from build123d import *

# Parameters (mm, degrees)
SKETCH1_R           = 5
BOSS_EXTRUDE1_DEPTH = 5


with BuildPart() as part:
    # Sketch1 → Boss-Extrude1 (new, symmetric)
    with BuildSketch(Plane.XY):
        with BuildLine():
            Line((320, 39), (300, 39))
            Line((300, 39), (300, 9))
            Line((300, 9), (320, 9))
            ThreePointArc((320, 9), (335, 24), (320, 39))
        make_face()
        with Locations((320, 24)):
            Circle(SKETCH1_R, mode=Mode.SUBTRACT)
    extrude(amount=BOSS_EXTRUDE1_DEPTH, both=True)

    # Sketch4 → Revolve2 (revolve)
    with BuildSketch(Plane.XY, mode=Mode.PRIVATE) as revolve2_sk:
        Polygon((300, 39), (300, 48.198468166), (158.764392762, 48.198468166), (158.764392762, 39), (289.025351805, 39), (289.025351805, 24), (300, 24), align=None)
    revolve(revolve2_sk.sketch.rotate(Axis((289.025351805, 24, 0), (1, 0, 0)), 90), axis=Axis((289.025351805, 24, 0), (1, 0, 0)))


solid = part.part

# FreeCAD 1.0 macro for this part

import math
import FreeCAD as App
import Part
import Sketcher

V = App.Vector

doc = App.newDocument("Part")
body = doc.addObject("PartDesign::Body", "Body")

sketch1 = body.newObject("Sketcher::SketchObject", "Sketch")
sketch1.AttachmentSupport = (doc.getObject("XY_Plane"), [""])
sketch1.MapMode = "FlatFace"
sketch1.addGeometry([
    Part.LineSegment(V(320, 39, 0), V(300, 39, 0)),
    Part.LineSegment(V(300, 39, 0), V(300, 9, 0)),
    Part.LineSegment(V(300, 9, 0), V(320, 9, 0)),
    Part.ArcOfCircle(Part.Circle(V(320, 24, 0), V(0, 0, 1), 15), math.radians(-90), math.radians(90)),
    Part.Circle(V(320, 24, 0), V(0, 0, 1), 5),
], False)
sketch1.addConstraint([
    Sketcher.Constraint("Coincident", 0, 2, 1, 1),
    Sketcher.Constraint("Coincident", 1, 2, 2, 1),
    Sketcher.Constraint("Tangent", 2, 2, 3, 1),
    Sketcher.Constraint("Tangent", 3, 2, 0, 1),
    Sketcher.Constraint("Horizontal", 0),
    Sketcher.Constraint("Vertical", 1),
    Sketcher.Constraint("Horizontal", 2),
    Sketcher.Constraint("Coincident", 4, 3, 3, 3),
    Sketcher.Constraint("Diameter", 4, 10.0),
    Sketcher.Constraint("Radius", 3, 15.0),
    Sketcher.Constraint("DistanceX", 0, 2, 0, 1, 20.0),
    Sketcher.Constraint("DistanceX", -1, 1, 3, 3, 320.0),
    Sketcher.Constraint("DistanceY", -1, 1, 3, 3, 24.0),
])
pad1 = body.newObject("PartDesign::Pad", "Pad")
pad1.Profile = sketch1
pad1.Length = 10
pad1.Midplane = True

sketch2 = body.newObject("Sketcher::SketchObject", "Sketch001")
sketch2.AttachmentSupport = (doc.getObject("XY_Plane"), [""])
sketch2.MapMode = "FlatFace"
sketch2.addGeometry([
    Part.LineSegment(V(300, 48, 0), V(159, 48, 0)),
    Part.LineSegment(V(159, 48, 0), V(159, 39, 0)),
    Part.LineSegment(V(159, 39, 0), V(289, 39, 0)),
    Part.LineSegment(V(289, 39, 0), V(289, 24, 0)),
    Part.LineSegment(V(289, 24, 0), V(300, 24, 0)),
    Part.LineSegment(V(300, 24, 0), V(300, 48, 0)),
], False)
sketch2.addGeometry(Part.LineSegment(V(159, 24, 0), V(300, 24, 0)), True)
sketch2.addConstraint([
    Sketcher.Constraint("Coincident", 0, 2, 1, 1),
    Sketcher.Constraint("Coincident", 1, 2, 2, 1),
    Sketcher.Constraint("Coincident", 2, 2, 3, 1),
    Sketcher.Constraint("Coincident", 3, 2, 4, 1),
    Sketcher.Constraint("Coincident", 4, 2, 5, 1),
    Sketcher.Constraint("Coincident", 5, 2, 0, 1),
    Sketcher.Constraint("Horizontal", 0),
    Sketcher.Constraint("Vertical", 1),
    Sketcher.Constraint("Horizontal", 2),
    Sketcher.Constraint("Vertical", 3),
    Sketcher.Constraint("Horizontal", 4),
    Sketcher.Constraint("Vertical", 5),
    Sketcher.Constraint("Horizontal", 6),
    Sketcher.Constraint("Coincident", 6, 2, 4, 2),
    Sketcher.Constraint("Vertical", 1, 2, 6, 1),
    Sketcher.Constraint("DistanceY", 3, 2, 3, 1, 15.0),
    Sketcher.Constraint("DistanceY", -1, 1, 1, 2, 39.0),
    Sketcher.Constraint("DistanceX", -1, 1, 4, 2, 300.0),
    Sketcher.Constraint("DistanceX", 2, 1, 2, 2, 130.260959),
    Sketcher.Constraint("DistanceX", 4, 1, 4, 2, 10.974648),
    Sketcher.Constraint("DistanceY", 1, 2, 1, 1, 9.198468),
])
revolution = body.newObject("PartDesign::Revolution", "Revolution")
revolution.Profile = sketch2
revolution.ReferenceAxis = (sketch2, ["Axis0"])
revolution.Angle = 360

doc.recompute()
